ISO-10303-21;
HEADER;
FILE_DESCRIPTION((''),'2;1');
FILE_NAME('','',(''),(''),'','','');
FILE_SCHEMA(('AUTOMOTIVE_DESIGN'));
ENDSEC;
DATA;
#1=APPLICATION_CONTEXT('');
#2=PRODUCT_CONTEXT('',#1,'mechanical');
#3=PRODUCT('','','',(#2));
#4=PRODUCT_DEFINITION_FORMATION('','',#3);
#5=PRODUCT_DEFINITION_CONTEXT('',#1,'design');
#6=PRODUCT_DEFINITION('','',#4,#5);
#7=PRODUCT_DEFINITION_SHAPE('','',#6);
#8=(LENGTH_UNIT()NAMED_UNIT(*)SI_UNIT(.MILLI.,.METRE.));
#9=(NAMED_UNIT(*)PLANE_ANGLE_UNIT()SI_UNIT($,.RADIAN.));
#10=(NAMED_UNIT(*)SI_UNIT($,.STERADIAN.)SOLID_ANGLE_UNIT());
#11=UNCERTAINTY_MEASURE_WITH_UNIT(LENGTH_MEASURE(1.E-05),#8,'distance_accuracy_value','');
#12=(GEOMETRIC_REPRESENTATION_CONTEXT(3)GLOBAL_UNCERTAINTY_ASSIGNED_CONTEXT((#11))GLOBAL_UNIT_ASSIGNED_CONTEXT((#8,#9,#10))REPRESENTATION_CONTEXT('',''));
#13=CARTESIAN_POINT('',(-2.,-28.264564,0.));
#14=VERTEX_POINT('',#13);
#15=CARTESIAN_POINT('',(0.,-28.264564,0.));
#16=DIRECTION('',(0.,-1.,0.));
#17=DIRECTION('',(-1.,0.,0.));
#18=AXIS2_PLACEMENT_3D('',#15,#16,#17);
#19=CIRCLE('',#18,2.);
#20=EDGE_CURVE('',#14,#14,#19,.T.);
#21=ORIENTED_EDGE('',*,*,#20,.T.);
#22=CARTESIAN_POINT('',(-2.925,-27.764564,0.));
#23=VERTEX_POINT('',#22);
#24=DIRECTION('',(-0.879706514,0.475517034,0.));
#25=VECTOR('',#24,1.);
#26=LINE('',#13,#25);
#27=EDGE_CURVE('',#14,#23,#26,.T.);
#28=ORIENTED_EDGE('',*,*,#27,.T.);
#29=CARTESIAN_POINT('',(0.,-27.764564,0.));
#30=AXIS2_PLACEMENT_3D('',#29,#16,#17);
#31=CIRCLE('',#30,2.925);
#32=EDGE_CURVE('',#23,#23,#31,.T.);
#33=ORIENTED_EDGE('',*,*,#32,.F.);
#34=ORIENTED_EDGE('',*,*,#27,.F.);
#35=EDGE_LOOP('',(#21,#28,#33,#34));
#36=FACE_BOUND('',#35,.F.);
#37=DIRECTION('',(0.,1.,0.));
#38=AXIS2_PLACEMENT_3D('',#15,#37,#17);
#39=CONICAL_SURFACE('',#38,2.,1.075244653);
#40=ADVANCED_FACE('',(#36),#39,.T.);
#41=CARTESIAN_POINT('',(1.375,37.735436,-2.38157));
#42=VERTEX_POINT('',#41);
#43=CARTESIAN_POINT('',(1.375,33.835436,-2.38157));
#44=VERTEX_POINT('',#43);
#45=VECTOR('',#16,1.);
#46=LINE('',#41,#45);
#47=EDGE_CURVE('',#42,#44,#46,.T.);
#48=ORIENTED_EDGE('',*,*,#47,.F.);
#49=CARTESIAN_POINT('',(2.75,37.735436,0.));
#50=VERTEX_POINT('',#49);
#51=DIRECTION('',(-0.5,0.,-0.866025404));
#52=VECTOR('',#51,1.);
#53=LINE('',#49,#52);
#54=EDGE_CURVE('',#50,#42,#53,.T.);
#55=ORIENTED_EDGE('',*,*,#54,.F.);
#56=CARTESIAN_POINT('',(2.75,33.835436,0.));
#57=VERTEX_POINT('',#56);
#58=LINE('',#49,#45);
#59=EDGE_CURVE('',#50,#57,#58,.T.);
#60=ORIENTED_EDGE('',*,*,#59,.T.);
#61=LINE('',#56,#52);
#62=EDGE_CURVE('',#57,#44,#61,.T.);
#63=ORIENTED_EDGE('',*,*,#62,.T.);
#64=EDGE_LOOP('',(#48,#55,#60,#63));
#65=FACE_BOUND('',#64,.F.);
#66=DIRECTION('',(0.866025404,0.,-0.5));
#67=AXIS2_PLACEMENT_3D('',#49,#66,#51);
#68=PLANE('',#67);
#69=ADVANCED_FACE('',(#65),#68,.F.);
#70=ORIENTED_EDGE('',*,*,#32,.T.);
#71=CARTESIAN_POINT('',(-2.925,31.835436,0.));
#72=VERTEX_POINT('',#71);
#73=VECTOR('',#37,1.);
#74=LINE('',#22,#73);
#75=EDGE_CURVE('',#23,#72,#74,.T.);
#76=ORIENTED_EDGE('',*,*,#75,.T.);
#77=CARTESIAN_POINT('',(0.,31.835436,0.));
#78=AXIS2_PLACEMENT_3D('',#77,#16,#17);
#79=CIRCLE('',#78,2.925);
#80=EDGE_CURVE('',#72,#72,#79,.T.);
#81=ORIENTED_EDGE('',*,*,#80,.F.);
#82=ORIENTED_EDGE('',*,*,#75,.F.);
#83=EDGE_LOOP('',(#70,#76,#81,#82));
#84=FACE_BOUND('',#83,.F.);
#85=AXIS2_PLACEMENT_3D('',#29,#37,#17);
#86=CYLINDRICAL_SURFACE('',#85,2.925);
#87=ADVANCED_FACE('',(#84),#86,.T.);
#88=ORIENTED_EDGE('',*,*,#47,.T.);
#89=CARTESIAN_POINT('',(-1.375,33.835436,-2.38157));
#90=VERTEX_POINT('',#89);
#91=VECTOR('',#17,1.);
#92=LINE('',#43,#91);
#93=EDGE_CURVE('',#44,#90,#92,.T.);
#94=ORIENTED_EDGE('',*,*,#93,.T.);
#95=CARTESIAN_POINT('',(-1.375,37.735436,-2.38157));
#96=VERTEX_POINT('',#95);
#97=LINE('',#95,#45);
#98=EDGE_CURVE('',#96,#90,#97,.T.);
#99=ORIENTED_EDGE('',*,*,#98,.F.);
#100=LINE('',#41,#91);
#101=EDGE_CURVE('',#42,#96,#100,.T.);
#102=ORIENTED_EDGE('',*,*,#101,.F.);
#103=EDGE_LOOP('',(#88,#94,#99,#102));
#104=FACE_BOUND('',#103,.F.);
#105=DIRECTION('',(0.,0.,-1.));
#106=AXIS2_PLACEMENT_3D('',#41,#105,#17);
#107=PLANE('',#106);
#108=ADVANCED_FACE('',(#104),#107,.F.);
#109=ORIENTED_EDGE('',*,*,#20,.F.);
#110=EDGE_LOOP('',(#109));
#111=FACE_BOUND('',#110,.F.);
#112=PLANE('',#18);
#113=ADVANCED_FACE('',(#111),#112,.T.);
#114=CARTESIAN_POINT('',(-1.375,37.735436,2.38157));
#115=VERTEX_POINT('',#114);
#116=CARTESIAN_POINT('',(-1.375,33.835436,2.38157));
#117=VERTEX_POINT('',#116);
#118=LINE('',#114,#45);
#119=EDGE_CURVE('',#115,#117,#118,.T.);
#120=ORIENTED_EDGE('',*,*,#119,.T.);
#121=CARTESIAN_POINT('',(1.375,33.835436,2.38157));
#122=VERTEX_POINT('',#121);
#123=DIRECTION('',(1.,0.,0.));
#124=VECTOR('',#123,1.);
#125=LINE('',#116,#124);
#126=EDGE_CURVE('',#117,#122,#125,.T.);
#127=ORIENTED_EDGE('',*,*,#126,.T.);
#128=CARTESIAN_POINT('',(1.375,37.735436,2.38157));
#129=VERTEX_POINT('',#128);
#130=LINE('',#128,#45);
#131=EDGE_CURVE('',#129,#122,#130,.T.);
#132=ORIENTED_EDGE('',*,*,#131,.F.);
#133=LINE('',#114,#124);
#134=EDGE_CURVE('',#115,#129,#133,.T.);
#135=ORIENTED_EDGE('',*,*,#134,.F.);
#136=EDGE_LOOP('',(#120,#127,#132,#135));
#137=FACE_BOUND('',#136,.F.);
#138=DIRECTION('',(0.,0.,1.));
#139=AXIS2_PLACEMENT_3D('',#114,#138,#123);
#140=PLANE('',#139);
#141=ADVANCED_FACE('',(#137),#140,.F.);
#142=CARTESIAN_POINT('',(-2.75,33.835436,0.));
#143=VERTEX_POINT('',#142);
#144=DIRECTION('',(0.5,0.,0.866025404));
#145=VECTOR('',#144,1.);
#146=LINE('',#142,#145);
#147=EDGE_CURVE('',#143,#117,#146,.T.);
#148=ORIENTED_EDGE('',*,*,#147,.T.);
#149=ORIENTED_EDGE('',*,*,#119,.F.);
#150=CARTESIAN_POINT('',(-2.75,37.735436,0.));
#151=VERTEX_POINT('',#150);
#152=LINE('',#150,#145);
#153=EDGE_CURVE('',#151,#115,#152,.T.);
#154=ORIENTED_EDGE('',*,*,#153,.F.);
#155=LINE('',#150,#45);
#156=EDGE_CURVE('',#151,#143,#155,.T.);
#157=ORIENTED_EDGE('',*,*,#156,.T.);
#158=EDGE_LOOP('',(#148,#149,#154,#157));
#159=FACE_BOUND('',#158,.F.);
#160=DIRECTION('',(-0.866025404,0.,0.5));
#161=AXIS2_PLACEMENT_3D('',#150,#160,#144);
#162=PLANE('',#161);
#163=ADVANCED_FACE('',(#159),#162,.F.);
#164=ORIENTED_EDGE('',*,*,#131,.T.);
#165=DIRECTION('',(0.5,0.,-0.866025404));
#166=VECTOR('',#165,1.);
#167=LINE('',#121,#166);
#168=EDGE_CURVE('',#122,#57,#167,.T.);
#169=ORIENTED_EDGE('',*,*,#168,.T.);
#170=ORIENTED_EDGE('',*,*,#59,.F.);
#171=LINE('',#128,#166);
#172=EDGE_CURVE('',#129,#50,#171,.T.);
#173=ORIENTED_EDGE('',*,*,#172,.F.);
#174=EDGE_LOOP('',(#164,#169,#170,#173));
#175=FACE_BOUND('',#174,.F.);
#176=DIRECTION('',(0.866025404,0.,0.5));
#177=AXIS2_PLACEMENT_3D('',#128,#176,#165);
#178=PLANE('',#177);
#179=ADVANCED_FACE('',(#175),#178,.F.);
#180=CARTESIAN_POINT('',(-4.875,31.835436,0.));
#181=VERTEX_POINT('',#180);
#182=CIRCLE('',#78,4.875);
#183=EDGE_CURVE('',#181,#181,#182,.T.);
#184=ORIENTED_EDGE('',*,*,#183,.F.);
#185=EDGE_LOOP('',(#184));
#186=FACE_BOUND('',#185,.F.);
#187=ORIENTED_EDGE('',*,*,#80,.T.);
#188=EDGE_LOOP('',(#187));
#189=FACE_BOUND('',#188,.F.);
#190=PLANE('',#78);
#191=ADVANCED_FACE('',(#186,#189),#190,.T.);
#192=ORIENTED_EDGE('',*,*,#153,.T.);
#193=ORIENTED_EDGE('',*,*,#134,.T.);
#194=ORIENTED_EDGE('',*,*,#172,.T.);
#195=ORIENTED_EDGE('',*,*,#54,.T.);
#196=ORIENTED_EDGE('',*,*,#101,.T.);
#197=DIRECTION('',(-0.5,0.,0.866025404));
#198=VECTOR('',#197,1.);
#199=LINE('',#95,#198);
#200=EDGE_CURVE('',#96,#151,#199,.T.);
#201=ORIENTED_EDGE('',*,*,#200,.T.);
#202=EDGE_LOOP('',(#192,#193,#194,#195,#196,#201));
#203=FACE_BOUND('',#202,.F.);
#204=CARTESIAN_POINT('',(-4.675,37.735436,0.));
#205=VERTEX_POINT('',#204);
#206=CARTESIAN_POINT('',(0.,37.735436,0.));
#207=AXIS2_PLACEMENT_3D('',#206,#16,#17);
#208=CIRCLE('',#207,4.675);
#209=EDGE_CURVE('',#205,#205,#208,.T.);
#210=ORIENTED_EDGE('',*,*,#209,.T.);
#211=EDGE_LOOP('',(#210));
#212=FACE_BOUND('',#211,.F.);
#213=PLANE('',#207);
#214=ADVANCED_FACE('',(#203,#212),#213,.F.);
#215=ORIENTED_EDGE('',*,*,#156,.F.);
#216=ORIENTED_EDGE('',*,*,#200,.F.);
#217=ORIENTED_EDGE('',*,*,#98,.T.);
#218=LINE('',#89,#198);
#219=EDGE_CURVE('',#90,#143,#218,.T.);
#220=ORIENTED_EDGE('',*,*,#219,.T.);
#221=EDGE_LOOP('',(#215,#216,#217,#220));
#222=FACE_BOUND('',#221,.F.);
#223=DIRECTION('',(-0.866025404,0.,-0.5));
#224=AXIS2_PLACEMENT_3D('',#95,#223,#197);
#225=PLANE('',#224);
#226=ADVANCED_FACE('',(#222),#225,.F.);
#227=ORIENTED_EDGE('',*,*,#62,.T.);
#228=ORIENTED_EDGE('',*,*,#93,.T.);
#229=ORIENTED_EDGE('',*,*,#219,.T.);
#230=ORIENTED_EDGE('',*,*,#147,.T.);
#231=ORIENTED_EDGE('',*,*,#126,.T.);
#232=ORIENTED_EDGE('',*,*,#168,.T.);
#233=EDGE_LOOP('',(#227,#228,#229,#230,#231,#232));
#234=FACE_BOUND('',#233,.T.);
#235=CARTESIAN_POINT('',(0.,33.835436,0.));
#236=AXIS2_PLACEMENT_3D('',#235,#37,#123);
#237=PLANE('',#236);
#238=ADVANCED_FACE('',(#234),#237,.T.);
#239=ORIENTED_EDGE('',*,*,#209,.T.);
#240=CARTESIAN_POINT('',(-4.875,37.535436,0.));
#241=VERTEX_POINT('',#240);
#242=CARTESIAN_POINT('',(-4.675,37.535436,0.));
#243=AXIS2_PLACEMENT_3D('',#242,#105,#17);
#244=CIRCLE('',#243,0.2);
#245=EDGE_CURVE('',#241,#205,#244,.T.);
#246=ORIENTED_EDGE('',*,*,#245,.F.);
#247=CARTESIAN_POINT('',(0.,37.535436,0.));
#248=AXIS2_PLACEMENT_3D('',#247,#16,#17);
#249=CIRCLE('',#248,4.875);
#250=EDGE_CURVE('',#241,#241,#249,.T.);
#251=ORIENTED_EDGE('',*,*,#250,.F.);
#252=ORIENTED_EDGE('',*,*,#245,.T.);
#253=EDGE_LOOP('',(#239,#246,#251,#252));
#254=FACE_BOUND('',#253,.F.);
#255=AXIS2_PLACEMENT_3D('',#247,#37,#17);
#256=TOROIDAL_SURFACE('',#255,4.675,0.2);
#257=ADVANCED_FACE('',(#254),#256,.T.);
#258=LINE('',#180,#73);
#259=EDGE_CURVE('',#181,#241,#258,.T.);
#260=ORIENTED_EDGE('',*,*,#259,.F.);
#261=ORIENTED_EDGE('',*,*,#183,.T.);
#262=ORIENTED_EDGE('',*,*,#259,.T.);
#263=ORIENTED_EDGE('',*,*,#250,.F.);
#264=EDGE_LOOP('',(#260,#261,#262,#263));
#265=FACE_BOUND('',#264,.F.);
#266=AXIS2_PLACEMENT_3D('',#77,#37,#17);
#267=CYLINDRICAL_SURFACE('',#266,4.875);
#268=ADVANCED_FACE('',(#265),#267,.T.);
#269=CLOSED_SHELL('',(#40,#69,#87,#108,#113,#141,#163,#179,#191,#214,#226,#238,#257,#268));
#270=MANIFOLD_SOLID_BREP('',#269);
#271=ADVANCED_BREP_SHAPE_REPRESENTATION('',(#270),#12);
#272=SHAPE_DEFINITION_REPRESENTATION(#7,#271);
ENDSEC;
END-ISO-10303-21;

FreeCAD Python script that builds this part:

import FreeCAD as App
import Part
import Sketcher
Q = App.Units.Quantity


def edges_at(feature, points):
    """Names of the edges that pass closest to the given points."""
    edges = feature.Shape.Edges
    near = lambda p: min(range(len(edges)), key=lambda i: edges[i].distToShape(Part.Vertex(*p))[0])
    return sorted({f"Edge{near(p) + 1}" for p in points})

doc = App.newDocument("Part")
params = doc.addObject("Spreadsheet::Sheet", "Params")
for row, (alias, value) in enumerate([
    ("sketch1_width", "2 mm"),
    ("sketch1_height", "66 mm"),
    ("sketch1_height2", "5.9 mm"),
    ("sketch1_height3", "59.6 mm"),
    ("sketch1_width2", "1.95 mm"),
    ("revolution_angle", "360 deg"),
    ("sketch2_width", "2.75 mm"),
    ("pocket1_length", "3.9 mm"),
    ("fillet_radius", "0.2 mm"),
], start=1):
    params.set(f"A{row}", alias)
    params.set(f"B{row}", "=" + value)
    params.setAlias(f"B{row}", alias)

body = doc.addObject("PartDesign::Body", "Body")

# Sketch on XY plane
sketch1 = body.newObject("Sketcher::SketchObject", "Sketch")
sketch1.AttachmentSupport = (doc.getObject("XY_Plane"), [""])
sketch1.MapMode = "FlatFace"
sketch1.addGeometry([
    Part.LineSegment(App.Vector(0, -28.264564, 0), App.Vector(0, 37.735436, 0)),  # 0
    Part.LineSegment(App.Vector(0, 37.735436, 0), App.Vector(-4.875, 37.735436, 0)),  # 1
    Part.LineSegment(App.Vector(-4.875, 37.735436, 0), App.Vector(-4.875, 31.835436, 0)),  # 2
    Part.LineSegment(App.Vector(-4.875, 31.835436, 0), App.Vector(-2.925, 31.835436, 0)),  # 3
    Part.LineSegment(App.Vector(-2.925, 31.835436, 0), App.Vector(-2.925, -27.764564, 0)),  # 4
    Part.LineSegment(App.Vector(-2.925, -27.764564, 0), App.Vector(-2, -28.264564, 0)),  # 5
    Part.LineSegment(App.Vector(-2, -28.264564, 0), App.Vector(0, -28.264564, 0)),  # 6
], False)
sketch1.addConstraint([
    Sketcher.Constraint("Coincident", 0, 2, 1, 1),
    Sketcher.Constraint("Coincident", 1, 2, 2, 1),
    Sketcher.Constraint("Coincident", 2, 2, 3, 1),
    Sketcher.Constraint("Coincident", 3, 2, 4, 1),
    Sketcher.Constraint("Coincident", 4, 2, 5, 1),
    Sketcher.Constraint("Coincident", 5, 2, 6, 1),
    Sketcher.Constraint("Coincident", 6, 2, 0, 1),
    Sketcher.Constraint("Vertical", 0),
    Sketcher.Constraint("Horizontal", 1),
    Sketcher.Constraint("Vertical", 2),
    Sketcher.Constraint("Horizontal", 3),
    Sketcher.Constraint("Vertical", 4),
    Sketcher.Constraint("Horizontal", 6),
    Sketcher.Constraint("PointOnObject", 0, 2, -2),
    Sketcher.Constraint("DistanceX", 6, 1, 6, 2, Q("2 mm")),
    Sketcher.Constraint("DistanceY", 0, 1, 0, 2, Q("66 mm")),
    Sketcher.Constraint("DistanceY", 2, 2, 2, 1, Q("5.9 mm")),
    Sketcher.Constraint("DistanceY", 4, 2, 4, 1, Q("59.6 mm")),
    Sketcher.Constraint("DistanceX", 3, 1, 3, 2, Q("1.95 mm")),
    Sketcher.Constraint("DistanceX", 1, 2, 1, 1, Q("4.875 mm")),
    Sketcher.Constraint("DistanceY", -1, 1, 0, 2, Q("37.735436 mm")),
])
sketch1.setExpression("Constraints[14]", "Params.sketch1_width")
sketch1.setExpression("Constraints[15]", "Params.sketch1_height")
sketch1.setExpression("Constraints[16]", "Params.sketch1_height2")
sketch1.setExpression("Constraints[17]", "Params.sketch1_height3")
sketch1.setExpression("Constraints[18]", "Params.sketch1_width2")
revolution = body.newObject("PartDesign::Revolution", "Revolution")
revolution.Profile = sketch1
revolution.ReferenceAxis = (sketch1, ["V_Axis"])
revolution.setExpression("Angle", "Params.revolution_angle")

# Sketch on XZ plane
sketch2 = body.newObject("Sketcher::SketchObject", "Sketch001")
sketch2.AttachmentSupport = (doc.getObject("XZ_Plane"), [""])
sketch2.MapMode = "FlatFace"
sketch2.AttachmentOffset = App.Placement(App.Vector(0, 0, -37.735436), App.Rotation())
sketch2.addGeometry([
    Part.LineSegment(App.Vector(2.75, 0, 0), App.Vector(1.375, -2.38157, 0)),  # 0
    Part.LineSegment(App.Vector(1.375, -2.38157, 0), App.Vector(-1.375, -2.38157, 0)),  # 1
    Part.LineSegment(App.Vector(-1.375, -2.38157, 0), App.Vector(-2.75, 0, 0)),  # 2
    Part.LineSegment(App.Vector(-2.75, 0, 0), App.Vector(-1.375, 2.38157, 0)),  # 3
    Part.LineSegment(App.Vector(-1.375, 2.38157, 0), App.Vector(1.375, 2.38157, 0)),  # 4
    Part.LineSegment(App.Vector(1.375, 2.38157, 0), App.Vector(2.75, 0, 0)),  # 5
], False)
sketch2.addConstraint([
    Sketcher.Constraint("Coincident", 0, 2, 1, 1),
    Sketcher.Constraint("Coincident", 1, 2, 2, 1),
    Sketcher.Constraint("Coincident", 2, 2, 3, 1),
    Sketcher.Constraint("Coincident", 3, 2, 4, 1),
    Sketcher.Constraint("Coincident", 4, 2, 5, 1),
    Sketcher.Constraint("Coincident", 5, 2, 0, 1),
    Sketcher.Constraint("Horizontal", 1),
    Sketcher.Constraint("Horizontal", 4),
    Sketcher.Constraint("Symmetric", 0, 2, 3, 2, -1, 1),
    Sketcher.Constraint("Symmetric", 2, 2, 5, 2, -1, 1),
    Sketcher.Constraint("PointOnObject", 2, 2, -1),
    Sketcher.Constraint("Parallel", 2, 5),
    Sketcher.Constraint("Vertical", 1, 2, 3, 2),
    Sketcher.Constraint("Angle", 0, Q("-120 deg")),
    Sketcher.Constraint("DistanceX", 1, 2, 1, 1, Q("2.75 mm")),
    Sketcher.Constraint("DistanceX", 2, 2, 5, 2, Q("5.5 mm")),
])
sketch2.setExpression("Constraints[14]", "Params.sketch2_width")
pocket1 = body.newObject("PartDesign::Pocket", "Pocket")
pocket1.Profile = sketch2
pocket1.setExpression("Length", "Params.pocket1_length")
pocket1.Reversed = True
doc.recompute()

fillet = body.newObject("PartDesign::Fillet", "Fillet")
fillet.Base = (pocket1, edges_at(pocket1, [(4.875, 37.735, 0)]))
fillet.setExpression("Radius", "Params.fillet_radius")

doc.recompute()
